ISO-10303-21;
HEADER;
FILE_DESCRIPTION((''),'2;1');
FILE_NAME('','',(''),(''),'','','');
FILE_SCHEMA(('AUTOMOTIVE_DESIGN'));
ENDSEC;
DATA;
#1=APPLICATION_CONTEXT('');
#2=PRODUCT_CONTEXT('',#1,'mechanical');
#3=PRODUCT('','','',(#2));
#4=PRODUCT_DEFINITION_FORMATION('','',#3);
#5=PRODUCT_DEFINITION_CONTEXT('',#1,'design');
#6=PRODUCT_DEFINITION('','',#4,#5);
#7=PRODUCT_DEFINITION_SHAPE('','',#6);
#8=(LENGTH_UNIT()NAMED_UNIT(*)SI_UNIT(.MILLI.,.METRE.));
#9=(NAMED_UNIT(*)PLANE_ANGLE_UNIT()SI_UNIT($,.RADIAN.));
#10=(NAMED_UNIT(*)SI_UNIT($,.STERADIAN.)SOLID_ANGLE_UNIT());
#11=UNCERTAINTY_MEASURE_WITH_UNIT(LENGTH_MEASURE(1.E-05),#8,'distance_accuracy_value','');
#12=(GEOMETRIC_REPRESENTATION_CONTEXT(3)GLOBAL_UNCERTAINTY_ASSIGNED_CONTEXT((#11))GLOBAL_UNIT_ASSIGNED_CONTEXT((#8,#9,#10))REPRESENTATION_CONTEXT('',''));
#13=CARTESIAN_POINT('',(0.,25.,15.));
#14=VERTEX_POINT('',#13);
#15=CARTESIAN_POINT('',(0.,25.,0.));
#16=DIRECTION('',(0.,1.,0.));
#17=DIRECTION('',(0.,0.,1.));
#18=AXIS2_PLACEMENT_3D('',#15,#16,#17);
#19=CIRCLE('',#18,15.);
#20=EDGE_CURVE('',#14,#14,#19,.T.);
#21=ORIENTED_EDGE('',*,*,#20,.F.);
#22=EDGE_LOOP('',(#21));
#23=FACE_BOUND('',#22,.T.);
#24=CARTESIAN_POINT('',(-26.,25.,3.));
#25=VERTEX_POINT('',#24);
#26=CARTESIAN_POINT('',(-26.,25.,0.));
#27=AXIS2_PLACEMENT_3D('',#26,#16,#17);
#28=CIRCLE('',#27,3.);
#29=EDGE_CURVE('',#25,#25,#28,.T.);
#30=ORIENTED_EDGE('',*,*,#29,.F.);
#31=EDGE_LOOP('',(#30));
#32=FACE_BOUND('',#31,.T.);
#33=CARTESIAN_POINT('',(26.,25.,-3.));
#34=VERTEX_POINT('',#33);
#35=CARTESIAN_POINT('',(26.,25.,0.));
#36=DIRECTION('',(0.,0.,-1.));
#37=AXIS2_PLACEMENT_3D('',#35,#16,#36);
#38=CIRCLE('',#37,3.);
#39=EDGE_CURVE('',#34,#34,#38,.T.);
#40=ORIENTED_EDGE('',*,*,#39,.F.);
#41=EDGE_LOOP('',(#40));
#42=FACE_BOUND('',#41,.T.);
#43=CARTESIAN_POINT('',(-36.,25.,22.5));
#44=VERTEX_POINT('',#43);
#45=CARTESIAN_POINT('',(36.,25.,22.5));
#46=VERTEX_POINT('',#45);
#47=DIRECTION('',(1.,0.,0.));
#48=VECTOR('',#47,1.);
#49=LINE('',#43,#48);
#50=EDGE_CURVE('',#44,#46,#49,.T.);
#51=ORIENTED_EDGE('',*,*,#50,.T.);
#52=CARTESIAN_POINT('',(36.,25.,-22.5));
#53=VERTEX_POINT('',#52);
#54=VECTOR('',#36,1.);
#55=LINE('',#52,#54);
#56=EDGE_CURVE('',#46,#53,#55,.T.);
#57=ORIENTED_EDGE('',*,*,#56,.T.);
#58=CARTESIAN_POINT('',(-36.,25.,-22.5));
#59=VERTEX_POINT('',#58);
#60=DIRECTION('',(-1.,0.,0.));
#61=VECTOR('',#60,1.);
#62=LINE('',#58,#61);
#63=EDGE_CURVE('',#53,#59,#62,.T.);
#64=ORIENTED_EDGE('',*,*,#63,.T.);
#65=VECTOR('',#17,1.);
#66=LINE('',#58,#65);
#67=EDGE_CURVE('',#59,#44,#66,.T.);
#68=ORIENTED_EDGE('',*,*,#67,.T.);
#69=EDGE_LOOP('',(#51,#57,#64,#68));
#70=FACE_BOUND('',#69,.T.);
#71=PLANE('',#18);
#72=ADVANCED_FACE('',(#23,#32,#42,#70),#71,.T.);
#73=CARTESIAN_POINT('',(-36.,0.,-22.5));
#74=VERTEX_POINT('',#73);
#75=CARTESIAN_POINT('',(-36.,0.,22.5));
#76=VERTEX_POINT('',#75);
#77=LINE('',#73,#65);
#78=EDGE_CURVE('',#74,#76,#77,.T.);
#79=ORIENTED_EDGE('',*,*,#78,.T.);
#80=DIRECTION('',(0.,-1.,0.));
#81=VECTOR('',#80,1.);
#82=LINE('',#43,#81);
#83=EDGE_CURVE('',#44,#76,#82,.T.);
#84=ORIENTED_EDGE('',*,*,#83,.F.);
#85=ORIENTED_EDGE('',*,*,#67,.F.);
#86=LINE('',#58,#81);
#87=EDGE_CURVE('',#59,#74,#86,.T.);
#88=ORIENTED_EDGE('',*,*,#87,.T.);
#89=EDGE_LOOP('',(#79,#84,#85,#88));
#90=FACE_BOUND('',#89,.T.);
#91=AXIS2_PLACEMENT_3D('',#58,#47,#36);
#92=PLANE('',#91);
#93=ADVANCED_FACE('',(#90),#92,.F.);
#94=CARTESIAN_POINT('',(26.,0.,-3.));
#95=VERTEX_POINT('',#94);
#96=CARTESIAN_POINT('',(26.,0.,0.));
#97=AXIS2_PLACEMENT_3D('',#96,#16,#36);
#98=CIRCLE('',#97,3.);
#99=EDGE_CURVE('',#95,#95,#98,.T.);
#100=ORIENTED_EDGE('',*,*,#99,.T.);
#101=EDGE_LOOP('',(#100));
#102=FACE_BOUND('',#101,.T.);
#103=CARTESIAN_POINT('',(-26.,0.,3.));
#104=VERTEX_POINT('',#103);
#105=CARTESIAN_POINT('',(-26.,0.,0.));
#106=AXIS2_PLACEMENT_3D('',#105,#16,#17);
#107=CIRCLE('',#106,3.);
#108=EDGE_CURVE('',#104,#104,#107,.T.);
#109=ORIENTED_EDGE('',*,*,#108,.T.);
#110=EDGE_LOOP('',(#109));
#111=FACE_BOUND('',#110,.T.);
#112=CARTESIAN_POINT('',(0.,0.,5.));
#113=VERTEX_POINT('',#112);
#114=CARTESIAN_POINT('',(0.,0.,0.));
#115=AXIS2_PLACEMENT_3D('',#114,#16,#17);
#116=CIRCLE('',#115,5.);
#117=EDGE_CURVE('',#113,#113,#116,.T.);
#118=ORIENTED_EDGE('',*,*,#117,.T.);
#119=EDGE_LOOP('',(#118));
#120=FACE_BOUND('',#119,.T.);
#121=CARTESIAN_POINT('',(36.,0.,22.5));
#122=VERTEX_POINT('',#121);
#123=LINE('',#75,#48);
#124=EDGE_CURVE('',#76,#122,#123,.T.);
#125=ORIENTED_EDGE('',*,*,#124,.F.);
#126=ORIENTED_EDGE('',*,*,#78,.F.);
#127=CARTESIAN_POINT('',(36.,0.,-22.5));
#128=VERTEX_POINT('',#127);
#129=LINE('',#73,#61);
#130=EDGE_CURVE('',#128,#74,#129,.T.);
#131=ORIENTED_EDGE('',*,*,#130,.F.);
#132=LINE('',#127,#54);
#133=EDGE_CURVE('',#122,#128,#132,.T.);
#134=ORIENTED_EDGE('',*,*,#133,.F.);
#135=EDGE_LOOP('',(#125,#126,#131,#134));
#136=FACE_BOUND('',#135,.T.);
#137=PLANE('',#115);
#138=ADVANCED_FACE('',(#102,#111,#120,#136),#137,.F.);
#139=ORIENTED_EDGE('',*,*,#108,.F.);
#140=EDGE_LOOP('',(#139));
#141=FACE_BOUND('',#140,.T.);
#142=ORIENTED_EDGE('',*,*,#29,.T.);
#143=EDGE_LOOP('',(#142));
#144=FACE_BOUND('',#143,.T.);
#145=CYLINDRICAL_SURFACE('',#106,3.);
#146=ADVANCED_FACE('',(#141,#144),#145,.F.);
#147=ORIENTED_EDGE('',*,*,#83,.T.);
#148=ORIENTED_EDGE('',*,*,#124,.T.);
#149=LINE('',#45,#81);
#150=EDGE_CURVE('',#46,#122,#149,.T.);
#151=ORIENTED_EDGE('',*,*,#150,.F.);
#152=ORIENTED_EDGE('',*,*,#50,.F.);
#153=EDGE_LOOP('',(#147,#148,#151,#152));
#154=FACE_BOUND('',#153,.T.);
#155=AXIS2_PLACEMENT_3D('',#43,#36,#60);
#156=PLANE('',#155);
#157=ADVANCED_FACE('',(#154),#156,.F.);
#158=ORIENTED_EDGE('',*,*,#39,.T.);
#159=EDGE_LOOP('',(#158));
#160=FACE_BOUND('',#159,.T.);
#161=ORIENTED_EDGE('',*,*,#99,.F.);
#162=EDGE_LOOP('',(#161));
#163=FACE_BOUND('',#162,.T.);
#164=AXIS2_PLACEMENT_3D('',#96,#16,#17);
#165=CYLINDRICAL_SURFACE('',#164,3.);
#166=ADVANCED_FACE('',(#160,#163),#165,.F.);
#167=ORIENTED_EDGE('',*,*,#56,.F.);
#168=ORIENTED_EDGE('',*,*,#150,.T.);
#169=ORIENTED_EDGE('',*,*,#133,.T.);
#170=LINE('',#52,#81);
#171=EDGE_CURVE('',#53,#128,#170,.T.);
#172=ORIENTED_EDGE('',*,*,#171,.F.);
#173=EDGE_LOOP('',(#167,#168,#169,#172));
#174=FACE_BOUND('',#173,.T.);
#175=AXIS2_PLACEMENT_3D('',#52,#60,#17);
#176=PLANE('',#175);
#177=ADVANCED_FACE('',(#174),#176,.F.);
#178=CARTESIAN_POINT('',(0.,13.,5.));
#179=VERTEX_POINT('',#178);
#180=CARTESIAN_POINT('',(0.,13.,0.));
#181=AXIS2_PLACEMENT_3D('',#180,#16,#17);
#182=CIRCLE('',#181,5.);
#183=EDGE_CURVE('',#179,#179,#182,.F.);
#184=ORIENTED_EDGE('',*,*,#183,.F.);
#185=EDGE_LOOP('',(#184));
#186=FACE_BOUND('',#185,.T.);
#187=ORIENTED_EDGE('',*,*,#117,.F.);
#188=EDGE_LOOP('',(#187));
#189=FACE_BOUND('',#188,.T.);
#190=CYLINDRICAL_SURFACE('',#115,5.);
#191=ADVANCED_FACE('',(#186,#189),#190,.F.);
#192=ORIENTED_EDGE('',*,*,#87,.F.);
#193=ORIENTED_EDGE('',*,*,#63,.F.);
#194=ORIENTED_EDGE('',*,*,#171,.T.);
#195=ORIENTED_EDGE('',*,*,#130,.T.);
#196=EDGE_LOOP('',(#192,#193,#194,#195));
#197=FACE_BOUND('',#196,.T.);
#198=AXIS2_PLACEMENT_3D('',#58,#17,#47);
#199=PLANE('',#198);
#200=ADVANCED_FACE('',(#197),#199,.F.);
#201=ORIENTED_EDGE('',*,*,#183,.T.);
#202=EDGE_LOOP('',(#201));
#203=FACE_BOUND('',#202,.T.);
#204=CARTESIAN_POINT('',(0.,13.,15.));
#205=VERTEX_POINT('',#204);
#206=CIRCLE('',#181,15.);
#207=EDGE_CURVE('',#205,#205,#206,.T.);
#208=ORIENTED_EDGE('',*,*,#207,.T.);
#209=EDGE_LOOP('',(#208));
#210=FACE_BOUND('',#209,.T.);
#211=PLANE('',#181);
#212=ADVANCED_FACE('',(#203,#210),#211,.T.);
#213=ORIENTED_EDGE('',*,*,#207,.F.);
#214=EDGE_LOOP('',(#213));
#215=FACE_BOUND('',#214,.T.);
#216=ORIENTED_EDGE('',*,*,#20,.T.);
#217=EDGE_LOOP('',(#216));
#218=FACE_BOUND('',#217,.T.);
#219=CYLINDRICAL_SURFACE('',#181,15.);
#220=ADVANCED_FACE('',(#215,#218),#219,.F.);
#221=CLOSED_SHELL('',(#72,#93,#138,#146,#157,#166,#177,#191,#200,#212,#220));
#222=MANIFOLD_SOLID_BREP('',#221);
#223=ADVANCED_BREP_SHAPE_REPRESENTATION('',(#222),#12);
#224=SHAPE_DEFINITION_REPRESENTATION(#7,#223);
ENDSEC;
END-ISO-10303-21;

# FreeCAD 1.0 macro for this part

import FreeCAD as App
import Part
import Sketcher
from FreeCAD import Vector
Q = App.Units.Quantity


def add_polygon(sketch, points):
    """Adds a closed chain of lines whose ends are joined by coincident constraints."""
    first, n = sketch.GeometryCount, len(points)
    for a, b in zip(points, points[1:] + points[:1]):
        sketch.addGeometry(Part.LineSegment(App.Vector(*a, 0), App.Vector(*b, 0)), False)
    for i in range(n):
        sketch.addConstraint(Sketcher.Constraint("Coincident", first + i, 2, first + (i + 1) % n, 1))

doc = App.newDocument("Part")
body = doc.addObject("PartDesign::Body", "Body")

# Sketch on XZ plane
sketch1 = body.newObject("Sketcher::SketchObject", "Sketch")
sketch1.AttachmentSupport = (doc.getObject("XZ_Plane"), [""])
sketch1.MapMode = "FlatFace"
add_polygon(sketch1, [(-36, -22), (-36, 22), (36, 22), (36, -22)])  # lines 0-3
sketch1.addConstraint([
    Sketcher.Constraint("Vertical", 0),
    Sketcher.Constraint("Horizontal", 1),
    Sketcher.Constraint("Vertical", 2),
    Sketcher.Constraint("Horizontal", 3),
    Sketcher.Constraint("Symmetric", 0, 2, 2, 2, -1, 1),
    Sketcher.Constraint("DistanceX", 1, 1, 1, 2, Q("72 mm")),
    Sketcher.Constraint("DistanceY", 0, 1, 0, 2, Q("45 mm")),
])
pad1 = body.newObject("PartDesign::Pad", "Pad")
pad1.Profile = sketch1
pad1.Length = 25
pad1.Reversed = True

# Sketch on XZ plane
sketch2 = body.newObject("Sketcher::SketchObject", "Sketch001")
sketch2.AttachmentSupport = (doc.getObject("XZ_Plane"), [""])
sketch2.MapMode = "FlatFace"
sketch2.AttachmentOffset = App.Placement(Vector(0, 0, -25), App.Rotation())
sketch2.addGeometry(Part.Circle(Vector(0, 0, 0), Vector(0, 0, 1), 5), False)
sketch2.addConstraint([
    Sketcher.Constraint("Coincident", 0, 3, -1, 1),
    Sketcher.Constraint("Diameter", 0, Q("10 mm")),
])
pocket1 = body.newObject("PartDesign::Pocket", "Pocket")
pocket1.Profile = sketch2
pocket1.Type = "ThroughAll"
pocket1.Reversed = True

# Sketch on XZ plane
sketch3 = body.newObject("Sketcher::SketchObject", "Sketch002")
sketch3.AttachmentSupport = (doc.getObject("XZ_Plane"), [""])
sketch3.MapMode = "FlatFace"
sketch3.AttachmentOffset = App.Placement(Vector(0, 0, -25), App.Rotation())
sketch3.addGeometry([
    Part.Circle(Vector(-26, 0, 0), Vector(0, 0, 1), 3),
    Part.Circle(Vector(26, 0, 0), Vector(0, 0, 1), 3),
], False)
sketch3.addConstraint([
    Sketcher.Constraint("Equal", 0, 1),
    Sketcher.Constraint("Symmetric", 0, 3, 1, 3, -1, 1),
    Sketcher.Constraint("PointOnObject", 0, 3, -1),
    Sketcher.Constraint("Diameter", 0, Q("6 mm")),
    Sketcher.Constraint("DistanceX", 0, 3, -1, 1, Q("26 mm")),
])
pocket2 = body.newObject("PartDesign::Pocket", "Pocket001")
pocket2.Profile = sketch3
pocket2.Type = "ThroughAll"
pocket2.Reversed = True

# Sketch on XZ plane
sketch4 = body.newObject("Sketcher::SketchObject", "Sketch003")
sketch4.AttachmentSupport = (doc.getObject("XZ_Plane"), [""])
sketch4.MapMode = "FlatFace"
sketch4.AttachmentOffset = App.Placement(Vector(0, 0, -25), App.Rotation())
sketch4.addGeometry(Part.Circle(Vector(0, 0, 0), Vector(0, 0, 1), 15), False)
sketch4.addConstraint([
    Sketcher.Constraint("Coincident", 0, 3, -1, 1),
    Sketcher.Constraint("Diameter", 0, Q("30 mm")),
])
pocket3 = body.newObject("PartDesign::Pocket", "Pocket002")
pocket3.Profile = sketch4
pocket3.Length = 12
pocket3.Reversed = True

doc.recompute()
